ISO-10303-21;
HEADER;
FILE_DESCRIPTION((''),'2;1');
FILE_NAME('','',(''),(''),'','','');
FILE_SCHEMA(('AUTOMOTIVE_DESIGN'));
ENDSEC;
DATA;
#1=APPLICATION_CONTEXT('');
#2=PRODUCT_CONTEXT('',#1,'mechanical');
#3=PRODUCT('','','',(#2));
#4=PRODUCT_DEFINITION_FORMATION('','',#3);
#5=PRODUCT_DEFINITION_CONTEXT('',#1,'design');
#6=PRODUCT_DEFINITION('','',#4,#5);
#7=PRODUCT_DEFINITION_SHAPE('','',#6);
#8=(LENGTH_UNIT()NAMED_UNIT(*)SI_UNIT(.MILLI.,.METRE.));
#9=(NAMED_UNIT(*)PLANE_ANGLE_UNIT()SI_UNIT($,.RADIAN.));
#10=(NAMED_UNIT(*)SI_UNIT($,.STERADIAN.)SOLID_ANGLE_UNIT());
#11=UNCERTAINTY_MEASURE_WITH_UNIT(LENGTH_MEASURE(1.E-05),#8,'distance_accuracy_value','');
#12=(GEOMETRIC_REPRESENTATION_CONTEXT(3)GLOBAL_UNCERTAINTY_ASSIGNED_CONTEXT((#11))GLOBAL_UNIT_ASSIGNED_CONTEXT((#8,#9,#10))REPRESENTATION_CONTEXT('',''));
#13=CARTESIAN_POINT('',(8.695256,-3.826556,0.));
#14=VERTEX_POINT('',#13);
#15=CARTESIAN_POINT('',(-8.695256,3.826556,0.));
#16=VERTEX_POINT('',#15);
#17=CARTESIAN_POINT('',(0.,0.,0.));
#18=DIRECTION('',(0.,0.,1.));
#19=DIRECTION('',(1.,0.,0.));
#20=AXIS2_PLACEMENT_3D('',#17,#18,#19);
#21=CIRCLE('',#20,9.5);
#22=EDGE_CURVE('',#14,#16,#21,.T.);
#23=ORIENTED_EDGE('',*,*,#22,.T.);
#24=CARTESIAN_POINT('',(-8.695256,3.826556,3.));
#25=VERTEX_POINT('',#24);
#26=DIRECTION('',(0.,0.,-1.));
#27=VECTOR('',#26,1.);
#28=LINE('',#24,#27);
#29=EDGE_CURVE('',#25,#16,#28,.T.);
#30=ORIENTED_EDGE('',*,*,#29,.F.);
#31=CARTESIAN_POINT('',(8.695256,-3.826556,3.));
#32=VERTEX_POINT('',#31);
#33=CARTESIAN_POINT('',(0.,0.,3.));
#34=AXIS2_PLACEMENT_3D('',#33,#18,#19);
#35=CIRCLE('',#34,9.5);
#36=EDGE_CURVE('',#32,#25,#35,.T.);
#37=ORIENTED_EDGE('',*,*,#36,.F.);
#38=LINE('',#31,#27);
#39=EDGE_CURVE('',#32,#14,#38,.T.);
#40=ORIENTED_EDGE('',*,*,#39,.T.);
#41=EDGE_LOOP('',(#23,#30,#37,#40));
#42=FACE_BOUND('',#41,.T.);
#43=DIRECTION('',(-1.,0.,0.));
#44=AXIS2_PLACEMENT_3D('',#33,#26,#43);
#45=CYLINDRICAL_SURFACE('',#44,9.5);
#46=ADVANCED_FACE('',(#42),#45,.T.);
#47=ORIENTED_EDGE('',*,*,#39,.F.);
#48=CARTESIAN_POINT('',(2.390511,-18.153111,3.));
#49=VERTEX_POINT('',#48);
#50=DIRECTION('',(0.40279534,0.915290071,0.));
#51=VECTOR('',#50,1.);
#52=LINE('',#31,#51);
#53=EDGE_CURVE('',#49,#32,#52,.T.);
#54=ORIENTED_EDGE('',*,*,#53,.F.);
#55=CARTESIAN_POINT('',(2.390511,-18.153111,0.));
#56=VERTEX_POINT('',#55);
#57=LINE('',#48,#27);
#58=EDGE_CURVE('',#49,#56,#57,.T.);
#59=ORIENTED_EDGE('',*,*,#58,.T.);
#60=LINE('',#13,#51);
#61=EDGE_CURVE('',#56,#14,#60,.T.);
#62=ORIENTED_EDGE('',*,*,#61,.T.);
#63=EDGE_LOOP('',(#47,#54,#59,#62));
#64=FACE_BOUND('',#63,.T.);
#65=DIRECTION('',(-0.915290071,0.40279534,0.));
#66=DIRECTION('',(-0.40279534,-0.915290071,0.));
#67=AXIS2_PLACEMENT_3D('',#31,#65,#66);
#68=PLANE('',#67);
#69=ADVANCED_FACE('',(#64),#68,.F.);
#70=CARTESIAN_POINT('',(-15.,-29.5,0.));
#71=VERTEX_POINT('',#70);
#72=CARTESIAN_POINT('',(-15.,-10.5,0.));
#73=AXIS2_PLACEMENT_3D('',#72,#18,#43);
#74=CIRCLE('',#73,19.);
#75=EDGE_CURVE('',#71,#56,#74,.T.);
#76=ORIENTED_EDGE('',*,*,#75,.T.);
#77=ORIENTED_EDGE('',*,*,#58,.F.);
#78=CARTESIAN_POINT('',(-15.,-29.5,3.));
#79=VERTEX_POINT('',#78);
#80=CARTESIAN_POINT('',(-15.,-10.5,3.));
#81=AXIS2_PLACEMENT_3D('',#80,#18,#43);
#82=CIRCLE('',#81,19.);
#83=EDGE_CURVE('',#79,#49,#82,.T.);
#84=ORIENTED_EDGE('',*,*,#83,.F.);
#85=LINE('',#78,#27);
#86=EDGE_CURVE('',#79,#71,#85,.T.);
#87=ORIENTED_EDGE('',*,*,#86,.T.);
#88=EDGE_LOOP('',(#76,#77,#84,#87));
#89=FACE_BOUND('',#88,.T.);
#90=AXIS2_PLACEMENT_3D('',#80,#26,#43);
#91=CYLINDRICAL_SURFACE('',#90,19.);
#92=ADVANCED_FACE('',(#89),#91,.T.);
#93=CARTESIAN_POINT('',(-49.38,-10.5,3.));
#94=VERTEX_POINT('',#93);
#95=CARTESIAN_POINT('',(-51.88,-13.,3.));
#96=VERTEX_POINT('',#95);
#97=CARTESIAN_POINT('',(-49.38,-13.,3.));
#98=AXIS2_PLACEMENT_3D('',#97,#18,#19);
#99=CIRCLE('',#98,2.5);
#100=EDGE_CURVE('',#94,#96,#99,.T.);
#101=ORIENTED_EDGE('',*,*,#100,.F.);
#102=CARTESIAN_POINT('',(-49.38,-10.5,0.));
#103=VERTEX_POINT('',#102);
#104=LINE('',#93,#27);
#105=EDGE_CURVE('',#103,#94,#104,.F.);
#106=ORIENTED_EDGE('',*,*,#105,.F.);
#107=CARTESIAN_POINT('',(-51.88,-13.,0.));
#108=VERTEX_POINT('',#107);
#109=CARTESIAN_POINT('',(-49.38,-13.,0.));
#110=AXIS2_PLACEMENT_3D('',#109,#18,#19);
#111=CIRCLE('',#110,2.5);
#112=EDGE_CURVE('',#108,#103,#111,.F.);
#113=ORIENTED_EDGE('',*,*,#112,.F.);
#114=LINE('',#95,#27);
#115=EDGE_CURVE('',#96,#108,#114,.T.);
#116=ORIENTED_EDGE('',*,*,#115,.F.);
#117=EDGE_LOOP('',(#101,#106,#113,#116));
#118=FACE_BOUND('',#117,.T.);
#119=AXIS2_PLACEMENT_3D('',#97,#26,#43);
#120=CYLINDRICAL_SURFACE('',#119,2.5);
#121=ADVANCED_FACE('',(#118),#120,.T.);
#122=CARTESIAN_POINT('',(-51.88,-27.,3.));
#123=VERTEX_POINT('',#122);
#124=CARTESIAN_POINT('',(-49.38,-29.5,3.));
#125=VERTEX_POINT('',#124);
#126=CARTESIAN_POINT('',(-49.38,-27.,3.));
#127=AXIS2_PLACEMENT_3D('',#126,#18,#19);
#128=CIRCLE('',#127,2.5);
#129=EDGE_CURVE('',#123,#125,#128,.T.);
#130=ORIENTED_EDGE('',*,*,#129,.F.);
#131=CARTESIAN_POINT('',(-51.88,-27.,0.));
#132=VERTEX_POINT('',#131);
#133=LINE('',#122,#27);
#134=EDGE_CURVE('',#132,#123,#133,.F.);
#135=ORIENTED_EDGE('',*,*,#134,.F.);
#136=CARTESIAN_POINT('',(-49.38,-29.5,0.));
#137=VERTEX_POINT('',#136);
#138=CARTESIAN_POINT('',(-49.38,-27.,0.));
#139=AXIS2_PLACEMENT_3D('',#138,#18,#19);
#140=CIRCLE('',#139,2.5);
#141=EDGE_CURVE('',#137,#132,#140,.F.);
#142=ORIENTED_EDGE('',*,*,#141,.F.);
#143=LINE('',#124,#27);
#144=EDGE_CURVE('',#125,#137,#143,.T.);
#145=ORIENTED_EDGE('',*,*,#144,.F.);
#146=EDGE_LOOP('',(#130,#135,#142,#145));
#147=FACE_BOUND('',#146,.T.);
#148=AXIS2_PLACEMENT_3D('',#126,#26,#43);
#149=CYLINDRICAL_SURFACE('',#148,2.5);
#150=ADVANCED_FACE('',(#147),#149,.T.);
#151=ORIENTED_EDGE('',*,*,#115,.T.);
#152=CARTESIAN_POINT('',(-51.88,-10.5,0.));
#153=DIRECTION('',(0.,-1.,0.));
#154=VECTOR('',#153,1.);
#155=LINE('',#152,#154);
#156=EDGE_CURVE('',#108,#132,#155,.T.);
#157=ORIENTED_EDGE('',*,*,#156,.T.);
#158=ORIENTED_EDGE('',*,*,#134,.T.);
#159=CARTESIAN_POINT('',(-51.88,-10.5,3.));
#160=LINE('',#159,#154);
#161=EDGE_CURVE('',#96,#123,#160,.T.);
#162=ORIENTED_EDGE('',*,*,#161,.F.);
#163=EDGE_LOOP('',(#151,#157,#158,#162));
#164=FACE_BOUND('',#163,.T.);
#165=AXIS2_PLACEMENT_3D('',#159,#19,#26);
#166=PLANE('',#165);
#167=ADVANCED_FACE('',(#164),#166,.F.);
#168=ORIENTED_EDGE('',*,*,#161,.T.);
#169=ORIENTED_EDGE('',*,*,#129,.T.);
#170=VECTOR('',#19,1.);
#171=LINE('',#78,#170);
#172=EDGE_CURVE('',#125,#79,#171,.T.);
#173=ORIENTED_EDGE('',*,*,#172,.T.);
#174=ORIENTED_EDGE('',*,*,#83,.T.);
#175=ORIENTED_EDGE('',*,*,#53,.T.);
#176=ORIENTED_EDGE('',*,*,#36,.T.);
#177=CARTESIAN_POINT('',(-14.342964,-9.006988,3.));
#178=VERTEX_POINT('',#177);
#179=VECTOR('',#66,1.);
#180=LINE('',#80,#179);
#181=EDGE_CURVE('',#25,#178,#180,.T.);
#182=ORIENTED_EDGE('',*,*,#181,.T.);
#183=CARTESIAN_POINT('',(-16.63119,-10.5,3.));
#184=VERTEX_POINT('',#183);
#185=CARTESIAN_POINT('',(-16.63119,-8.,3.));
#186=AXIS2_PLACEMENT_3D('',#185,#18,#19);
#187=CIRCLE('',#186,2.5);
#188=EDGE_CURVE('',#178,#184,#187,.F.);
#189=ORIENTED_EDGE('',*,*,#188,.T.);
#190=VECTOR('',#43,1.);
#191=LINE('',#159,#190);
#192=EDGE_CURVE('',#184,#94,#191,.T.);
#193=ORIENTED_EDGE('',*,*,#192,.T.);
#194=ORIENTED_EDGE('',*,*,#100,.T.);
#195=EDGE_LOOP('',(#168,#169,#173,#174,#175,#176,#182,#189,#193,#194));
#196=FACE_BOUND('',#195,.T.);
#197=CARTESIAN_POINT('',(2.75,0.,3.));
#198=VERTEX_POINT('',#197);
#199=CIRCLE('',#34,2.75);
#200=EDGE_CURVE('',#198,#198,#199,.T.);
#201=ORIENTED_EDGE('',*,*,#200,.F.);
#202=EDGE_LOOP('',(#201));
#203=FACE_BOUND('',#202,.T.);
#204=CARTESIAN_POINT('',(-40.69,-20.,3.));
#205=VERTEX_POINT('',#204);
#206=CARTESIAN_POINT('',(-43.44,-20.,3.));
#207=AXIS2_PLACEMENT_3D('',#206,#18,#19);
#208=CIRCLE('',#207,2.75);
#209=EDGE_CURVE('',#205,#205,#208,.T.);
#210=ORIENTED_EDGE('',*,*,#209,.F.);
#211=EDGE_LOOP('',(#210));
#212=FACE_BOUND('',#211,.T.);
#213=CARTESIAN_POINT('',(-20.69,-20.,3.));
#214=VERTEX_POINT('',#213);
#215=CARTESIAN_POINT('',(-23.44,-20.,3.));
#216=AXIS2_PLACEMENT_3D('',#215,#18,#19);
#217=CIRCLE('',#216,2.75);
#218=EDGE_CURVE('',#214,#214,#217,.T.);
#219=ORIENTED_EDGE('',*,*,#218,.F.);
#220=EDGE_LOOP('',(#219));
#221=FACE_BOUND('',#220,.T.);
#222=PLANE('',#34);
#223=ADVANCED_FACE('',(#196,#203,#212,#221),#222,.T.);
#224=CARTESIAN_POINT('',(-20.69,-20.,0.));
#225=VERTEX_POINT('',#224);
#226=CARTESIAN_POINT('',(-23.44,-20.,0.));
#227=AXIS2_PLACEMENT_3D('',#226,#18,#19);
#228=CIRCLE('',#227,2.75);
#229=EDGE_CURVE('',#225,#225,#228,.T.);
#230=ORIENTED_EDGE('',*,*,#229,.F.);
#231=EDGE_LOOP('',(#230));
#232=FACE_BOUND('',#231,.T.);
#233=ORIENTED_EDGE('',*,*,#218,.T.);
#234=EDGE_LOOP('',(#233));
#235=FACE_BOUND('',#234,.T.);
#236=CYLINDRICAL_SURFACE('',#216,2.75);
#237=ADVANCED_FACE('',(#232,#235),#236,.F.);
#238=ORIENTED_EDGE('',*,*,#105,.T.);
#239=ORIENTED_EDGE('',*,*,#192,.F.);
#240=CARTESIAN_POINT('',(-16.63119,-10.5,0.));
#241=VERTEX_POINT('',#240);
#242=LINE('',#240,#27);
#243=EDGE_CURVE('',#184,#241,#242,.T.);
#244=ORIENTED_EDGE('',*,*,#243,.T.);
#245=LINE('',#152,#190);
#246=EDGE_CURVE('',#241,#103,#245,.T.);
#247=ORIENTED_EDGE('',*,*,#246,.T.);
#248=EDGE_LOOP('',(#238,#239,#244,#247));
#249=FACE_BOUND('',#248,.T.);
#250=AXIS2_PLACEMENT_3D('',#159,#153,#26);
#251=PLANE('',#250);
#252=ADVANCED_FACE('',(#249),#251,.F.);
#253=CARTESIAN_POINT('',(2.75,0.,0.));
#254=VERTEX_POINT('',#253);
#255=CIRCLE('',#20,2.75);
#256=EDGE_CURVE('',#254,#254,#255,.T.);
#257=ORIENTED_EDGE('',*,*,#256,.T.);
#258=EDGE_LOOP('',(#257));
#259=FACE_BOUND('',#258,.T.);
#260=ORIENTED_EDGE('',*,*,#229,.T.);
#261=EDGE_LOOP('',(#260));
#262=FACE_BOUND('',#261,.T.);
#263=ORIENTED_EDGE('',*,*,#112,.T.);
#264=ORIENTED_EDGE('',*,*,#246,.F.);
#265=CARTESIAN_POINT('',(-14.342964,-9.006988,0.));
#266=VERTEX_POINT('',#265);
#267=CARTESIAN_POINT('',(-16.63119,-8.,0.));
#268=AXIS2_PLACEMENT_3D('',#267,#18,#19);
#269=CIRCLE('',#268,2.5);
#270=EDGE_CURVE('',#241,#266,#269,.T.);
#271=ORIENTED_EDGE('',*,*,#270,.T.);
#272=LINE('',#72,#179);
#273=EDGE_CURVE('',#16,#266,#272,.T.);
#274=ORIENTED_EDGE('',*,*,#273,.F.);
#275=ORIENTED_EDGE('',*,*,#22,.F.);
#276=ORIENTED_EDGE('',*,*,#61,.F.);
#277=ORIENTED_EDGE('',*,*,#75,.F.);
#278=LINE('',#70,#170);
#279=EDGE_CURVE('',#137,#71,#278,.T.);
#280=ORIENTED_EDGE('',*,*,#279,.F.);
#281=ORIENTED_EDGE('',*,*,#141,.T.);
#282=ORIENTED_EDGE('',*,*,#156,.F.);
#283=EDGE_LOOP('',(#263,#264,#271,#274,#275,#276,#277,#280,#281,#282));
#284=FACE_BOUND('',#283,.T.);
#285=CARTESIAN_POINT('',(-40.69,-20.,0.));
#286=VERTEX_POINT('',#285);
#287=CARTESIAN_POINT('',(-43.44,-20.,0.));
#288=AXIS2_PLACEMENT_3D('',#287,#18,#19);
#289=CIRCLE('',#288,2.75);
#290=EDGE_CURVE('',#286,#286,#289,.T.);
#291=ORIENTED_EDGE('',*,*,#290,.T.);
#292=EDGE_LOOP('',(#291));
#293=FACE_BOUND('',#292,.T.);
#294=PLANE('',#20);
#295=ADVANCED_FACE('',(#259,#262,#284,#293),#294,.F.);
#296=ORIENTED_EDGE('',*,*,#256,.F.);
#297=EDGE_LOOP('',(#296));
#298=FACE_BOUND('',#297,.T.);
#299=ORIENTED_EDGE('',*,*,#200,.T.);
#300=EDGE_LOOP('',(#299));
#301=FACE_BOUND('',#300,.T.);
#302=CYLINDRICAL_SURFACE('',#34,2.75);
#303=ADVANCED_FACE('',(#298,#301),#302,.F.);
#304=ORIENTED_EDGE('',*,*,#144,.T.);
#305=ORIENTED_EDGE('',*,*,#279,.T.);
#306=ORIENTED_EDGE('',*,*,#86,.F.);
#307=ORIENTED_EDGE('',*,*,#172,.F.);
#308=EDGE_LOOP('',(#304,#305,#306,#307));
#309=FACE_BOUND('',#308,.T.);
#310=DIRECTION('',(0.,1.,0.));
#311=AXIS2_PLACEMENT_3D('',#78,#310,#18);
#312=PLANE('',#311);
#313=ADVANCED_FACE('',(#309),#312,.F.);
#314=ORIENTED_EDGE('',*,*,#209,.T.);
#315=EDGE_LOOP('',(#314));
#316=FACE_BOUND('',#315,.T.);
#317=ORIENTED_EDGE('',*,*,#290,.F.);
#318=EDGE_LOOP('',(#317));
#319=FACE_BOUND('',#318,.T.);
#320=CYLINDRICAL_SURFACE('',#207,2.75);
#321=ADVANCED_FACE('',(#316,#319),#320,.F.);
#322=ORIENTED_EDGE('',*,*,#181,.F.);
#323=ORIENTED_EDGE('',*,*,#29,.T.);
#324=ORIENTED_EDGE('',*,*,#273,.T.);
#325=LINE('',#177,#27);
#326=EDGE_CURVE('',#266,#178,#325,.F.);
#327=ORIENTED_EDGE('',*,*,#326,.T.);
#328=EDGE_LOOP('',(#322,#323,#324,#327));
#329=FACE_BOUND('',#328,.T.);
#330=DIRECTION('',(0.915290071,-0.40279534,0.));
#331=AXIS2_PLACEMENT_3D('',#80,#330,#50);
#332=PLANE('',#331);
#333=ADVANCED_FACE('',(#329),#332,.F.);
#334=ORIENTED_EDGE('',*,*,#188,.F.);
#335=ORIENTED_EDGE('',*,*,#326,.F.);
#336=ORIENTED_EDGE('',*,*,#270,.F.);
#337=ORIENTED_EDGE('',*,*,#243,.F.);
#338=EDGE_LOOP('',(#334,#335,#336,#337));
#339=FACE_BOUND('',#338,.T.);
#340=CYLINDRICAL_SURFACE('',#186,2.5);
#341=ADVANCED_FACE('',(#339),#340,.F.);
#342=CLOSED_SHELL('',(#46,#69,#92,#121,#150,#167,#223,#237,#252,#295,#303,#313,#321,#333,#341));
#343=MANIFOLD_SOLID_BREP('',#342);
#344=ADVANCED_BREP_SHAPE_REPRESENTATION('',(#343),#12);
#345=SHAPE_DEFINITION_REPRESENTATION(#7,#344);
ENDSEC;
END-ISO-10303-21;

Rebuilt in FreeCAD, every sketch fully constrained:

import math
import FreeCAD as App
import Part
import Sketcher
from FreeCAD import Vector
Q = App.Units.Quantity


def edges_at(feature, points):
    """Names of the edges that pass closest to the given points."""
    edges = feature.Shape.Edges
    near = lambda p: min(range(len(edges)), key=lambda i: edges[i].distToShape(Part.Vertex(*p))[0])
    return sorted({f"Edge{near(p) + 1}" for p in points})

doc = App.newDocument("Part")
body = doc.addObject("PartDesign::Body", "Body")

# Sketch on XY plane
sketch1 = doc.addObject("Sketcher::SketchObject", "Sketch")
body.addObject(sketch1)
sketch1.AttachmentSupport = (doc.XY_Plane, [""])
sketch1.MapMode = "FlatFace"
sketch1.addGeometry([
    Part.LineSegment(Vector(2, -18, 0), Vector(9, -4, 0)),  # 0
    Part.ArcOfCircle(Part.Circle(Vector(0, 0, 0), Vector(0, 0, 1), 10), math.radians(-24), math.radians(156)),  # 1
    Part.LineSegment(Vector(-9, 4, 0), Vector(-15, -10, 0)),  # 2
    Part.LineSegment(Vector(-15, -10, 0), Vector(-52, -10, 0)),  # 3
    Part.LineSegment(Vector(-52, -10, 0), Vector(-52, -30, 0)),  # 4
    Part.LineSegment(Vector(-52, -30, 0), Vector(-15, -30, 0)),  # 5
    Part.ArcOfCircle(Part.Circle(Vector(-15, -11, 0), Vector(0, 0, 1), 19), math.radians(-90), math.radians(-24)),  # 6
], False)
sketch1.addConstraint([
    Sketcher.Constraint("Tangent", 0, 2, 1, 1),
    Sketcher.Constraint("Tangent", 1, 2, 2, 1),
    Sketcher.Constraint("Coincident", 2, 2, 3, 1),
    Sketcher.Constraint("Coincident", 3, 2, 4, 1),
    Sketcher.Constraint("Coincident", 4, 2, 5, 1),
    Sketcher.Constraint("Tangent", 5, 2, 6, 1),
    Sketcher.Constraint("Tangent", 6, 2, 0, 1),
    Sketcher.Constraint("Horizontal", 3),
    Sketcher.Constraint("Vertical", 4),
    Sketcher.Constraint("Horizontal", 5),
    Sketcher.Constraint("Coincident", 1, 3, -1, 1),
    Sketcher.Constraint("Coincident", 2, 2, 6, 3),
    Sketcher.Constraint("Parallel", 0, 2),
    Sketcher.Constraint("Radius", 6, Q("19 mm")),
    Sketcher.Constraint("DistanceX", 6, 3, -1, 1, Q("15 mm")),
    Sketcher.Constraint("DistanceX", 3, 2, 3, 1, Q("36.88 mm")),
    Sketcher.Constraint("DistanceY", 6, 3, -1, 1, Q("10.5 mm")),
])
pad1 = doc.addObject("PartDesign::Pad", "Pad")
body.addObject(pad1)
pad1.Profile = sketch1
pad1.Length = 3

# Sketch on XY plane
sketch2 = doc.addObject("Sketcher::SketchObject", "Sketch001")
body.addObject(sketch2)
sketch2.AttachmentSupport = (doc.XY_Plane, [""])
sketch2.MapMode = "FlatFace"
sketch2.AttachmentOffset = App.Placement(Vector(0, 0, 3), App.Rotation())
sketch2.addGeometry(Part.Circle(Vector(-43.4, -20, 0), Vector(0, 0, 1), 2.8), False)
sketch2.addConstraint([
    Sketcher.Constraint("Diameter", 0, Q("5.5 mm")),
    Sketcher.Constraint("DistanceY", 0, 3, -1, 1, Q("20 mm")),
    Sketcher.Constraint("DistanceX", 0, 3, -1, 1, Q("43.44 mm")),
])
doc.recompute()
hole = doc.addObject("PartDesign::Hole", "Hole")
body.addObject(hole)
hole.Profile = sketch2
hole.ThreadType = "None"
hole.Diameter = 5.5
hole.DepthType = "ThroughAll"

# Sketch on XY plane
sketch3 = doc.addObject("Sketcher::SketchObject", "Sketch002")
body.addObject(sketch3)
sketch3.AttachmentSupport = (doc.XY_Plane, [""])
sketch3.MapMode = "FlatFace"
sketch3.AttachmentOffset = App.Placement(Vector(0, 0, 3), App.Rotation())
sketch3.addGeometry(Part.Circle(Vector(-23.4, -20, 0), Vector(0, 0, 1), 2.8), False)
sketch3.addConstraint([
    Sketcher.Constraint("Diameter", 0, Q("5.5 mm")),
    Sketcher.Constraint("DistanceY", 0, 3, -1, 1, Q("20 mm")),
    Sketcher.Constraint("DistanceX", 0, 3, -1, 1, Q("23.44 mm")),
])
doc.recompute()
hole2 = doc.addObject("PartDesign::Hole", "Hole001")
body.addObject(hole2)
hole2.Profile = sketch3
hole2.ThreadType = "None"
hole2.Diameter = 5.5
hole2.DepthType = "ThroughAll"

# Sketch on XY plane
sketch4 = doc.addObject("Sketcher::SketchObject", "Sketch003")
body.addObject(sketch4)
sketch4.AttachmentSupport = (doc.XY_Plane, [""])
sketch4.MapMode = "FlatFace"
sketch4.AttachmentOffset = App.Placement(Vector(0, 0, 3), App.Rotation())
sketch4.addGeometry(Part.Circle(Vector(0, 0, 0), Vector(0, 0, 1), 2.8), False)
sketch4.addConstraint([
    Sketcher.Constraint("Coincident", 0, 3, -1, 1),
    Sketcher.Constraint("Diameter", 0, Q("5.5 mm")),
])
doc.recompute()
hole3 = doc.addObject("PartDesign::Hole", "Hole002")
body.addObject(hole3)
hole3.Profile = sketch4
hole3.ThreadType = "None"
hole3.Diameter = 5.5
hole3.DepthType = "ThroughAll"
doc.recompute()

fillet = doc.addObject("PartDesign::Fillet", "Fillet")
body.addObject(fillet)
fillet.Base = (hole3, edges_at(hole3, [(-51.88, -29.5, 1.5), (-51.88, -10.5, 1.5), (-15, -10.5, 1.5)]))
fillet.Radius = 2.5

doc.recompute()
